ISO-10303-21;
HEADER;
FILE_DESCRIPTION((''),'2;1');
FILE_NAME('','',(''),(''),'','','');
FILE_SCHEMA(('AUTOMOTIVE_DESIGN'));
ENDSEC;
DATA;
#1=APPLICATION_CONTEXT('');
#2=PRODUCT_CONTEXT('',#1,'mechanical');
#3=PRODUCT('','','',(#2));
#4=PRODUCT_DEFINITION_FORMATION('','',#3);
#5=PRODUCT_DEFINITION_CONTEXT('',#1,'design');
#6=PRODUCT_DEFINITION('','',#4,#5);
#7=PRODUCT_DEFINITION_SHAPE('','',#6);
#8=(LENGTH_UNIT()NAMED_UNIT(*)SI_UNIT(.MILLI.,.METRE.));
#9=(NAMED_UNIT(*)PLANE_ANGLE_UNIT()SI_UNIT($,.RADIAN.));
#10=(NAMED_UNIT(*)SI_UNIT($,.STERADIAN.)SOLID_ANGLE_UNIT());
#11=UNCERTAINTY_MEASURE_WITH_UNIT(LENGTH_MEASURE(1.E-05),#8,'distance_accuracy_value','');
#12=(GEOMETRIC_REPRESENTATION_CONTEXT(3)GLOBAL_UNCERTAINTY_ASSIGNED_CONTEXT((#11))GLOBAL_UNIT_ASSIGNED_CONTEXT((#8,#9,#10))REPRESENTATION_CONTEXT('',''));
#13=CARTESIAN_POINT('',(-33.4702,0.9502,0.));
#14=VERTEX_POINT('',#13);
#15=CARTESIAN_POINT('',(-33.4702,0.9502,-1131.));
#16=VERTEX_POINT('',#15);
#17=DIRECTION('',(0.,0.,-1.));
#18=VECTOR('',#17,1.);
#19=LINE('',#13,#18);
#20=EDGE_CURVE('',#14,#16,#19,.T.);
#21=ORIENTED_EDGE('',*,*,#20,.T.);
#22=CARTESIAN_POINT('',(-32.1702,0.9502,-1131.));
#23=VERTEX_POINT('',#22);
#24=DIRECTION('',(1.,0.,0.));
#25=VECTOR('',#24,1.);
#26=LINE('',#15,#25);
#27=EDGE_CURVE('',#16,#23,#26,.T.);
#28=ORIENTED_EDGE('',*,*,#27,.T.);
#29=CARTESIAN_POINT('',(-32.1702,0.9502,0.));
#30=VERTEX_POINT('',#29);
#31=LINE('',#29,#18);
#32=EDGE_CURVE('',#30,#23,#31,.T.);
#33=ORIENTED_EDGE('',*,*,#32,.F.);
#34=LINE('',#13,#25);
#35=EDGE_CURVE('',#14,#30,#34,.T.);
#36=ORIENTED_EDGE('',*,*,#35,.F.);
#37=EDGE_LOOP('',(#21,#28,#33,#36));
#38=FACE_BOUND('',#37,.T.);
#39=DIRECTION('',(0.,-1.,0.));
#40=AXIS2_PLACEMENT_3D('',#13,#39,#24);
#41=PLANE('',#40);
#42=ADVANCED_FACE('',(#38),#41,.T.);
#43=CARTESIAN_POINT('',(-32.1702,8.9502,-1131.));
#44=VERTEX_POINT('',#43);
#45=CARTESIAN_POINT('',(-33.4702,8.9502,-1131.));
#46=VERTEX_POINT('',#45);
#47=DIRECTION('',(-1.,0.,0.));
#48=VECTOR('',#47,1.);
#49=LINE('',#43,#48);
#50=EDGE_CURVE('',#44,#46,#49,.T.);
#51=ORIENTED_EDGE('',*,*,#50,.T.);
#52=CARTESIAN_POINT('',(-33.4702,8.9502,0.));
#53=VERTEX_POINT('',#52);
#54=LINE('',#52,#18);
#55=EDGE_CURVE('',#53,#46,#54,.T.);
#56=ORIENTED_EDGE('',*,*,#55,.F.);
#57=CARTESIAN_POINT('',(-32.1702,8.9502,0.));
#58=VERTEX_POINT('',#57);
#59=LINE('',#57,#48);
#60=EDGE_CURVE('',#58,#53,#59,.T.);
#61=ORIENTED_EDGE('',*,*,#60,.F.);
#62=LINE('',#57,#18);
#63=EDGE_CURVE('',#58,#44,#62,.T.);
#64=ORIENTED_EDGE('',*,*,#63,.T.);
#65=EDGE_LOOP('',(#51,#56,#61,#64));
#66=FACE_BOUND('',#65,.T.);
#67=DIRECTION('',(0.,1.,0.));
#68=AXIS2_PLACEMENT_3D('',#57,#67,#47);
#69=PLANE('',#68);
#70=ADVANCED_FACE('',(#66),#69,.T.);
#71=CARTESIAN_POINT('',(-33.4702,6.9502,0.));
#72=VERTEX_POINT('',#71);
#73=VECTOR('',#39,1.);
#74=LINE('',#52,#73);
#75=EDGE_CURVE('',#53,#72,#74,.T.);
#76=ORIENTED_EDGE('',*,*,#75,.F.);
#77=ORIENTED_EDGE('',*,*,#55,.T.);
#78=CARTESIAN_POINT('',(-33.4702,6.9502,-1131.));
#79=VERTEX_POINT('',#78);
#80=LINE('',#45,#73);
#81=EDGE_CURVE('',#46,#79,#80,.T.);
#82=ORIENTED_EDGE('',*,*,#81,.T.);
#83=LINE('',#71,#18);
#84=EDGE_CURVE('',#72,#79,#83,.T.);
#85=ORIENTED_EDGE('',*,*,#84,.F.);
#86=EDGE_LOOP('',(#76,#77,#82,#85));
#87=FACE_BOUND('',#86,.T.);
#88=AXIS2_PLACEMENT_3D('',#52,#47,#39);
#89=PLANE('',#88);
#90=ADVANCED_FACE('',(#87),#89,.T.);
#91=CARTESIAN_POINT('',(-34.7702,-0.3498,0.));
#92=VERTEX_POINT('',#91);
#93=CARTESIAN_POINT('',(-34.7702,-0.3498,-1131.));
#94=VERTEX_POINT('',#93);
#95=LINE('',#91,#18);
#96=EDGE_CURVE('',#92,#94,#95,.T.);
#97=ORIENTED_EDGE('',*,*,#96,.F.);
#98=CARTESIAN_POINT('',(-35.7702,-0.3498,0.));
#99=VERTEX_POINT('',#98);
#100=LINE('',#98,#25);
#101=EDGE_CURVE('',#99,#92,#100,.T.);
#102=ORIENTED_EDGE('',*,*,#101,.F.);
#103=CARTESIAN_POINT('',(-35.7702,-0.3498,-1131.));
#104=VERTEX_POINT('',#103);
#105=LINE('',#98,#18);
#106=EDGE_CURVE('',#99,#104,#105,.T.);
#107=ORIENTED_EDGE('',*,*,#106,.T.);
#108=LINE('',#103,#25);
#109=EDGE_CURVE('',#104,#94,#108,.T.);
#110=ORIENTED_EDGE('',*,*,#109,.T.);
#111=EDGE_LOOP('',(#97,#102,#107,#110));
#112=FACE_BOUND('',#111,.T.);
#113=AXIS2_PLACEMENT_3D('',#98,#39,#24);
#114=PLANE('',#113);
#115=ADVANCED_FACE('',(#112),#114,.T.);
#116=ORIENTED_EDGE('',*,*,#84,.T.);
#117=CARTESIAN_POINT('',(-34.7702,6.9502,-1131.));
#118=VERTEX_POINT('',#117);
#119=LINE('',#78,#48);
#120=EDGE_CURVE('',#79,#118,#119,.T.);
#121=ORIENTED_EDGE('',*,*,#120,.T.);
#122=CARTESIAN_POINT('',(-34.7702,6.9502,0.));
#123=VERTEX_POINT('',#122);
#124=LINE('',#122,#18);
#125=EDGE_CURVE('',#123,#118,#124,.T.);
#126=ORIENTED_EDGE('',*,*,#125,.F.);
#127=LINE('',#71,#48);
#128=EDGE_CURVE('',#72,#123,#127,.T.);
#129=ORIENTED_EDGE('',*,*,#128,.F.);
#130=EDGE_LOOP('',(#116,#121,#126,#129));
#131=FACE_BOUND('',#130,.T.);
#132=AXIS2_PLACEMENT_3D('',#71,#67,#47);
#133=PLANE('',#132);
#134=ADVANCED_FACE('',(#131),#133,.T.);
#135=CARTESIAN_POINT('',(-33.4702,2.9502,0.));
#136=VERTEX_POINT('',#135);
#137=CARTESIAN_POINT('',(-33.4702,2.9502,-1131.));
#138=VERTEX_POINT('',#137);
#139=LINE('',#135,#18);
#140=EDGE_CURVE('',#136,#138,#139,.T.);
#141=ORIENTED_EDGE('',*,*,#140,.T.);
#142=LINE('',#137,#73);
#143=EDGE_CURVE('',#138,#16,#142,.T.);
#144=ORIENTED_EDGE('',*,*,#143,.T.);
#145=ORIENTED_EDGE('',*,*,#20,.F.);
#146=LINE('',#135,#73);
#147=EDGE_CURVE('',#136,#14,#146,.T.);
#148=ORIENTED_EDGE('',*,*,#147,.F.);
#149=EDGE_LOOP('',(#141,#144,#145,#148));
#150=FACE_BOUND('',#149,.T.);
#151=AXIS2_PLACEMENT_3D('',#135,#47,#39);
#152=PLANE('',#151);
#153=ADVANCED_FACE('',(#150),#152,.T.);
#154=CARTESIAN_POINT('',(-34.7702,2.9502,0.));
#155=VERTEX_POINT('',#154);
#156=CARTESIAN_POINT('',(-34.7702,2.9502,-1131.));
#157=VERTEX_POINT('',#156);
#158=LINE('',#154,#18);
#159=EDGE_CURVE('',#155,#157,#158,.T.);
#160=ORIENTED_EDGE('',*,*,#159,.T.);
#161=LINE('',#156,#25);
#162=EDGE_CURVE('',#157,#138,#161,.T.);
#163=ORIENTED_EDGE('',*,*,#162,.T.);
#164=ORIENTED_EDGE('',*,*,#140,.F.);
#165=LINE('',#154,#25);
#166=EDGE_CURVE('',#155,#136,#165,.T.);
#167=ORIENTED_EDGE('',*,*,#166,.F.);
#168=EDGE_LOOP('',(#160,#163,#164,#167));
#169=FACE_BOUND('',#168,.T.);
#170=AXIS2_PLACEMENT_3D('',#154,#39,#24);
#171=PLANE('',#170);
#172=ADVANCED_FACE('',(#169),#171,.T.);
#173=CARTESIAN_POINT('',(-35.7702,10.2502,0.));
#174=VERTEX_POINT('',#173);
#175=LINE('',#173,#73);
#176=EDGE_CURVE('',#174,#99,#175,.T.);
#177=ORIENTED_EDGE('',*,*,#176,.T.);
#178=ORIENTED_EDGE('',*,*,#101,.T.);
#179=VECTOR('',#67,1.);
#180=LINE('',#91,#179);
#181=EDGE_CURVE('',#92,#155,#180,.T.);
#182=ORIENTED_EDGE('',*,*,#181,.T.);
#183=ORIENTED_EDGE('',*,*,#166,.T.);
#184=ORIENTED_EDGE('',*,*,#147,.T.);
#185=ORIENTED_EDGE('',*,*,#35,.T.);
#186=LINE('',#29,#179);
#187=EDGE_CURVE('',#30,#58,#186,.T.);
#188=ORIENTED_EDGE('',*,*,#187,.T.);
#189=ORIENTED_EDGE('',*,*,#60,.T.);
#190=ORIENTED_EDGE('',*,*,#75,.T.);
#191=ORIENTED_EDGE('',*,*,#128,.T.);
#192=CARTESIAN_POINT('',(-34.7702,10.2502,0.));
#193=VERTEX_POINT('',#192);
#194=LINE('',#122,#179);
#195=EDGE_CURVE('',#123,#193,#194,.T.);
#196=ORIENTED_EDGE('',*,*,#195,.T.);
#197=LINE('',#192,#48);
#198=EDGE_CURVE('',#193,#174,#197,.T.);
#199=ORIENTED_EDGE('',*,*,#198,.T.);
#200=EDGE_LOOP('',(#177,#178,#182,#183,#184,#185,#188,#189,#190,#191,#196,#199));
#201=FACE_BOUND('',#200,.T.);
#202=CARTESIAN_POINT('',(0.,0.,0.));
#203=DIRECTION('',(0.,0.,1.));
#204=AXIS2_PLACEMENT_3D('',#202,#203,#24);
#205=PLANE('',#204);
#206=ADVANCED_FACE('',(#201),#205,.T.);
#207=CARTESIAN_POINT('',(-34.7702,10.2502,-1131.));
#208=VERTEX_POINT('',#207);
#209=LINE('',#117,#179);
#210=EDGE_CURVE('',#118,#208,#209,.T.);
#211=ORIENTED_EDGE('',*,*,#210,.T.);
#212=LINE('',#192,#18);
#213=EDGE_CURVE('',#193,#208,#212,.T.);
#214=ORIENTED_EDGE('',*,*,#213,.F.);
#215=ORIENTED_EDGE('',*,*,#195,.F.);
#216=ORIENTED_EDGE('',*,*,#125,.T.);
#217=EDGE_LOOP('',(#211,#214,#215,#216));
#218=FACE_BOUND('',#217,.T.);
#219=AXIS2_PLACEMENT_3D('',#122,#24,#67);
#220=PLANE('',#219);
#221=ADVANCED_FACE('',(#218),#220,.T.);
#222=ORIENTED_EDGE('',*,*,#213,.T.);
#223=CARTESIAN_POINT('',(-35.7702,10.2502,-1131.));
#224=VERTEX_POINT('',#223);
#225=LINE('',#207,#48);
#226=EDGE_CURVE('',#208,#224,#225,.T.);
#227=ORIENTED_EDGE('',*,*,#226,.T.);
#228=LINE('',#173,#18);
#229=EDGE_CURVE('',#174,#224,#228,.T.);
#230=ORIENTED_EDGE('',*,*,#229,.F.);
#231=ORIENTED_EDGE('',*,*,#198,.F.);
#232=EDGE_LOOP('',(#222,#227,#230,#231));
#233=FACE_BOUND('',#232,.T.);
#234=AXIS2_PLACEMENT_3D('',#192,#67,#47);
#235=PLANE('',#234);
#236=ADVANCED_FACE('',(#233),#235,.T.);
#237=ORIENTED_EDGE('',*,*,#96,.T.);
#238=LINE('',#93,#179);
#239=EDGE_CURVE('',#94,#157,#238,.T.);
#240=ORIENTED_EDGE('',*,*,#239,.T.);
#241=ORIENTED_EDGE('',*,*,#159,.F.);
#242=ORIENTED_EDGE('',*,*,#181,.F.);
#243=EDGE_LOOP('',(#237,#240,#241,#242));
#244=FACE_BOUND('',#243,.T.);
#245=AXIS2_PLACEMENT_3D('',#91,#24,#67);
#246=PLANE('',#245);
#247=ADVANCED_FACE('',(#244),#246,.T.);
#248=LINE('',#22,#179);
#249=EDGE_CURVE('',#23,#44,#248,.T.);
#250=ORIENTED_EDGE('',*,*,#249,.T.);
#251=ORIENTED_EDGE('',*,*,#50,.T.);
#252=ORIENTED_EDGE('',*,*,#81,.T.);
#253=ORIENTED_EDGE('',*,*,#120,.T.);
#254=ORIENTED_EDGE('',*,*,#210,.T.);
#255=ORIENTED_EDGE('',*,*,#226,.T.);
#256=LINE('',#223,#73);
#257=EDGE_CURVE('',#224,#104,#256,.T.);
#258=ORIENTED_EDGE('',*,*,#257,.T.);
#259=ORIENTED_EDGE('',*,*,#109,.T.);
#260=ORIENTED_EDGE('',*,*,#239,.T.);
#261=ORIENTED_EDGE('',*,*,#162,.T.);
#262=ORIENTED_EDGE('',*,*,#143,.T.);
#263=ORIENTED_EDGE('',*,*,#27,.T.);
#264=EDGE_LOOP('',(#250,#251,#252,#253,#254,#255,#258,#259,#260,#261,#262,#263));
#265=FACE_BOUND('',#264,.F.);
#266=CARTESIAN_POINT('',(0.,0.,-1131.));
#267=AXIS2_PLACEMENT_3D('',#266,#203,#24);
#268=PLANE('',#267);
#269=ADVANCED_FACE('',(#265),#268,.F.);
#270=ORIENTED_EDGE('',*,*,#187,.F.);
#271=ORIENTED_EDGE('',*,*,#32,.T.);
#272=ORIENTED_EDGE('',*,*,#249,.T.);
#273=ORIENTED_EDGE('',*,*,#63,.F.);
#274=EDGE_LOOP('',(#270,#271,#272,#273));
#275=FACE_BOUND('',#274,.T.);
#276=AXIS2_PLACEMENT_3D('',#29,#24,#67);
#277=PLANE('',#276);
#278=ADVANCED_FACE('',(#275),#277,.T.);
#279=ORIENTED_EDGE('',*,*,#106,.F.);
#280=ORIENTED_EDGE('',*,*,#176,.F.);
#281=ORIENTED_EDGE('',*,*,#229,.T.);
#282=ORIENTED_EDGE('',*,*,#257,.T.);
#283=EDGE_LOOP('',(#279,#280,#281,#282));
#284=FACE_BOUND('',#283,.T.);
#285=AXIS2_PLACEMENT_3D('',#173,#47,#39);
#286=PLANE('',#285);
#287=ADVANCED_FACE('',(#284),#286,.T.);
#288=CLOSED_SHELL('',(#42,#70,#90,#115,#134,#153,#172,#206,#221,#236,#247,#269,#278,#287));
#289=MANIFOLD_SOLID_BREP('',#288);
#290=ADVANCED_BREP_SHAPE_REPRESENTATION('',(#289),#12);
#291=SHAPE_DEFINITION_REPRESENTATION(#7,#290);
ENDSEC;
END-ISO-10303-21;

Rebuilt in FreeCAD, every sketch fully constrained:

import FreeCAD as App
import Part
import Sketcher

doc = App.newDocument("Part")
body = doc.addObject("PartDesign::Body", "Body")

# Sketch on XY plane
sketch1 = doc.addObject("Sketcher::SketchObject", "Sketch")
body.addObject(sketch1)
sketch1.AttachmentSupport = (doc.XY_Plane, [""])
sketch1.MapMode = "FlatFace"
sketch1.addGeometry(Part.LineSegment(App.Vector(-35.7702, -0.3498, 0), App.Vector(-34.7702, -0.3498, 0)), False)
sketch1.addGeometry(Part.LineSegment(App.Vector(-34.7702, -0.3498, 0), App.Vector(-34.7702, 2.9502, 0)), False)
sketch1.addGeometry(Part.LineSegment(App.Vector(-34.7702, 2.9502, 0), App.Vector(-33.4702, 2.9502, 0)), False)
sketch1.addGeometry(Part.LineSegment(App.Vector(-33.4702, 2.9502, 0), App.Vector(-33.4702, 0.9502, 0)), False)
sketch1.addGeometry(Part.LineSegment(App.Vector(-33.4702, 0.9502, 0), App.Vector(-32.1702, 0.9502, 0)), False)
sketch1.addGeometry(Part.LineSegment(App.Vector(-32.1702, 0.9502, 0), App.Vector(-32.1702, 8.9502, 0)), False)
sketch1.addGeometry(Part.LineSegment(App.Vector(-32.1702, 8.9502, 0), App.Vector(-33.4702, 8.9502, 0)), False)
sketch1.addGeometry(Part.LineSegment(App.Vector(-33.4702, 8.9502, 0), App.Vector(-33.4702, 6.9502, 0)), False)
sketch1.addGeometry(Part.LineSegment(App.Vector(-33.4702, 6.9502, 0), App.Vector(-34.7702, 6.9502, 0)), False)
sketch1.addGeometry(Part.LineSegment(App.Vector(-34.7702, 6.9502, 0), App.Vector(-34.7702, 10.2502, 0)), False)
sketch1.addGeometry(Part.LineSegment(App.Vector(-34.7702, 10.2502, 0), App.Vector(-35.7702, 10.2502, 0)), False)
sketch1.addGeometry(Part.LineSegment(App.Vector(-35.7702, 10.2502, 0), App.Vector(-35.7702, -0.3498, 0)), False)
sketch1.addConstraint(Sketcher.Constraint("Coincident", 0, 2, 1, 1))
sketch1.addConstraint(Sketcher.Constraint("Coincident", 1, 2, 2, 1))
sketch1.addConstraint(Sketcher.Constraint("Coincident", 2, 2, 3, 1))
sketch1.addConstraint(Sketcher.Constraint("Coincident", 3, 2, 4, 1))
sketch1.addConstraint(Sketcher.Constraint("Coincident", 4, 2, 5, 1))
sketch1.addConstraint(Sketcher.Constraint("Coincident", 5, 2, 6, 1))
sketch1.addConstraint(Sketcher.Constraint("Coincident", 6, 2, 7, 1))
sketch1.addConstraint(Sketcher.Constraint("Coincident", 7, 2, 8, 1))
sketch1.addConstraint(Sketcher.Constraint("Coincident", 8, 2, 9, 1))
sketch1.addConstraint(Sketcher.Constraint("Coincident", 9, 2, 10, 1))
sketch1.addConstraint(Sketcher.Constraint("Coincident", 10, 2, 11, 1))
sketch1.addConstraint(Sketcher.Constraint("Coincident", 11, 2, 0, 1))
sketch1.addConstraint(Sketcher.Constraint("Horizontal", 0))
sketch1.addConstraint(Sketcher.Constraint("Vertical", 1))
sketch1.addConstraint(Sketcher.Constraint("Horizontal", 2))
sketch1.addConstraint(Sketcher.Constraint("Vertical", 3))
sketch1.addConstraint(Sketcher.Constraint("Horizontal", 4))
sketch1.addConstraint(Sketcher.Constraint("Vertical", 5))
sketch1.addConstraint(Sketcher.Constraint("Horizontal", 6))
sketch1.addConstraint(Sketcher.Constraint("Vertical", 7))
sketch1.addConstraint(Sketcher.Constraint("Horizontal", 8))
sketch1.addConstraint(Sketcher.Constraint("Vertical", 9))
sketch1.addConstraint(Sketcher.Constraint("Horizontal", 10))
sketch1.addConstraint(Sketcher.Constraint("Vertical", 11))
sketch1.addConstraint(Sketcher.Constraint("Vertical", 3, 2, 6, 2))
sketch1.addConstraint(Sketcher.Constraint("Vertical", 1, 2, 8, 2))
sketch1.addConstraint(Sketcher.Constraint("Equal", 2, 4))
sketch1.addConstraint(Sketcher.Constraint("Equal", 3, 7))
sketch1.addConstraint(Sketcher.Constraint("Equal", 1, 9))
sketch1.addConstraint(Sketcher.Constraint("DistanceX", 0, 1, 0, 2, 1.0))
sketch1.addConstraint(Sketcher.Constraint("DistanceY", 5, 1, 5, 2, 8.0))
sketch1.addConstraint(Sketcher.Constraint("DistanceX", 2, 1, 2, 2, 1.3))
sketch1.addConstraint(Sketcher.Constraint("DistanceY", 11, 2, 11, 1, 10.6))
sketch1.addConstraint(Sketcher.Constraint("DistanceY", 2, 2, 7, 2, 4.0))
sketch1.addConstraint(Sketcher.Constraint("DistanceX", 0, 2, -1, 1, 34.7702))
sketch1.addConstraint(Sketcher.Constraint("DistanceY", 0, 2, -1, 1, 0.3498))
pad1 = doc.addObject("PartDesign::Pad", "Pad")
body.addObject(pad1)
pad1.Profile = sketch1
pad1.Length = 1131
pad1.Reversed = True

doc.recompute()
